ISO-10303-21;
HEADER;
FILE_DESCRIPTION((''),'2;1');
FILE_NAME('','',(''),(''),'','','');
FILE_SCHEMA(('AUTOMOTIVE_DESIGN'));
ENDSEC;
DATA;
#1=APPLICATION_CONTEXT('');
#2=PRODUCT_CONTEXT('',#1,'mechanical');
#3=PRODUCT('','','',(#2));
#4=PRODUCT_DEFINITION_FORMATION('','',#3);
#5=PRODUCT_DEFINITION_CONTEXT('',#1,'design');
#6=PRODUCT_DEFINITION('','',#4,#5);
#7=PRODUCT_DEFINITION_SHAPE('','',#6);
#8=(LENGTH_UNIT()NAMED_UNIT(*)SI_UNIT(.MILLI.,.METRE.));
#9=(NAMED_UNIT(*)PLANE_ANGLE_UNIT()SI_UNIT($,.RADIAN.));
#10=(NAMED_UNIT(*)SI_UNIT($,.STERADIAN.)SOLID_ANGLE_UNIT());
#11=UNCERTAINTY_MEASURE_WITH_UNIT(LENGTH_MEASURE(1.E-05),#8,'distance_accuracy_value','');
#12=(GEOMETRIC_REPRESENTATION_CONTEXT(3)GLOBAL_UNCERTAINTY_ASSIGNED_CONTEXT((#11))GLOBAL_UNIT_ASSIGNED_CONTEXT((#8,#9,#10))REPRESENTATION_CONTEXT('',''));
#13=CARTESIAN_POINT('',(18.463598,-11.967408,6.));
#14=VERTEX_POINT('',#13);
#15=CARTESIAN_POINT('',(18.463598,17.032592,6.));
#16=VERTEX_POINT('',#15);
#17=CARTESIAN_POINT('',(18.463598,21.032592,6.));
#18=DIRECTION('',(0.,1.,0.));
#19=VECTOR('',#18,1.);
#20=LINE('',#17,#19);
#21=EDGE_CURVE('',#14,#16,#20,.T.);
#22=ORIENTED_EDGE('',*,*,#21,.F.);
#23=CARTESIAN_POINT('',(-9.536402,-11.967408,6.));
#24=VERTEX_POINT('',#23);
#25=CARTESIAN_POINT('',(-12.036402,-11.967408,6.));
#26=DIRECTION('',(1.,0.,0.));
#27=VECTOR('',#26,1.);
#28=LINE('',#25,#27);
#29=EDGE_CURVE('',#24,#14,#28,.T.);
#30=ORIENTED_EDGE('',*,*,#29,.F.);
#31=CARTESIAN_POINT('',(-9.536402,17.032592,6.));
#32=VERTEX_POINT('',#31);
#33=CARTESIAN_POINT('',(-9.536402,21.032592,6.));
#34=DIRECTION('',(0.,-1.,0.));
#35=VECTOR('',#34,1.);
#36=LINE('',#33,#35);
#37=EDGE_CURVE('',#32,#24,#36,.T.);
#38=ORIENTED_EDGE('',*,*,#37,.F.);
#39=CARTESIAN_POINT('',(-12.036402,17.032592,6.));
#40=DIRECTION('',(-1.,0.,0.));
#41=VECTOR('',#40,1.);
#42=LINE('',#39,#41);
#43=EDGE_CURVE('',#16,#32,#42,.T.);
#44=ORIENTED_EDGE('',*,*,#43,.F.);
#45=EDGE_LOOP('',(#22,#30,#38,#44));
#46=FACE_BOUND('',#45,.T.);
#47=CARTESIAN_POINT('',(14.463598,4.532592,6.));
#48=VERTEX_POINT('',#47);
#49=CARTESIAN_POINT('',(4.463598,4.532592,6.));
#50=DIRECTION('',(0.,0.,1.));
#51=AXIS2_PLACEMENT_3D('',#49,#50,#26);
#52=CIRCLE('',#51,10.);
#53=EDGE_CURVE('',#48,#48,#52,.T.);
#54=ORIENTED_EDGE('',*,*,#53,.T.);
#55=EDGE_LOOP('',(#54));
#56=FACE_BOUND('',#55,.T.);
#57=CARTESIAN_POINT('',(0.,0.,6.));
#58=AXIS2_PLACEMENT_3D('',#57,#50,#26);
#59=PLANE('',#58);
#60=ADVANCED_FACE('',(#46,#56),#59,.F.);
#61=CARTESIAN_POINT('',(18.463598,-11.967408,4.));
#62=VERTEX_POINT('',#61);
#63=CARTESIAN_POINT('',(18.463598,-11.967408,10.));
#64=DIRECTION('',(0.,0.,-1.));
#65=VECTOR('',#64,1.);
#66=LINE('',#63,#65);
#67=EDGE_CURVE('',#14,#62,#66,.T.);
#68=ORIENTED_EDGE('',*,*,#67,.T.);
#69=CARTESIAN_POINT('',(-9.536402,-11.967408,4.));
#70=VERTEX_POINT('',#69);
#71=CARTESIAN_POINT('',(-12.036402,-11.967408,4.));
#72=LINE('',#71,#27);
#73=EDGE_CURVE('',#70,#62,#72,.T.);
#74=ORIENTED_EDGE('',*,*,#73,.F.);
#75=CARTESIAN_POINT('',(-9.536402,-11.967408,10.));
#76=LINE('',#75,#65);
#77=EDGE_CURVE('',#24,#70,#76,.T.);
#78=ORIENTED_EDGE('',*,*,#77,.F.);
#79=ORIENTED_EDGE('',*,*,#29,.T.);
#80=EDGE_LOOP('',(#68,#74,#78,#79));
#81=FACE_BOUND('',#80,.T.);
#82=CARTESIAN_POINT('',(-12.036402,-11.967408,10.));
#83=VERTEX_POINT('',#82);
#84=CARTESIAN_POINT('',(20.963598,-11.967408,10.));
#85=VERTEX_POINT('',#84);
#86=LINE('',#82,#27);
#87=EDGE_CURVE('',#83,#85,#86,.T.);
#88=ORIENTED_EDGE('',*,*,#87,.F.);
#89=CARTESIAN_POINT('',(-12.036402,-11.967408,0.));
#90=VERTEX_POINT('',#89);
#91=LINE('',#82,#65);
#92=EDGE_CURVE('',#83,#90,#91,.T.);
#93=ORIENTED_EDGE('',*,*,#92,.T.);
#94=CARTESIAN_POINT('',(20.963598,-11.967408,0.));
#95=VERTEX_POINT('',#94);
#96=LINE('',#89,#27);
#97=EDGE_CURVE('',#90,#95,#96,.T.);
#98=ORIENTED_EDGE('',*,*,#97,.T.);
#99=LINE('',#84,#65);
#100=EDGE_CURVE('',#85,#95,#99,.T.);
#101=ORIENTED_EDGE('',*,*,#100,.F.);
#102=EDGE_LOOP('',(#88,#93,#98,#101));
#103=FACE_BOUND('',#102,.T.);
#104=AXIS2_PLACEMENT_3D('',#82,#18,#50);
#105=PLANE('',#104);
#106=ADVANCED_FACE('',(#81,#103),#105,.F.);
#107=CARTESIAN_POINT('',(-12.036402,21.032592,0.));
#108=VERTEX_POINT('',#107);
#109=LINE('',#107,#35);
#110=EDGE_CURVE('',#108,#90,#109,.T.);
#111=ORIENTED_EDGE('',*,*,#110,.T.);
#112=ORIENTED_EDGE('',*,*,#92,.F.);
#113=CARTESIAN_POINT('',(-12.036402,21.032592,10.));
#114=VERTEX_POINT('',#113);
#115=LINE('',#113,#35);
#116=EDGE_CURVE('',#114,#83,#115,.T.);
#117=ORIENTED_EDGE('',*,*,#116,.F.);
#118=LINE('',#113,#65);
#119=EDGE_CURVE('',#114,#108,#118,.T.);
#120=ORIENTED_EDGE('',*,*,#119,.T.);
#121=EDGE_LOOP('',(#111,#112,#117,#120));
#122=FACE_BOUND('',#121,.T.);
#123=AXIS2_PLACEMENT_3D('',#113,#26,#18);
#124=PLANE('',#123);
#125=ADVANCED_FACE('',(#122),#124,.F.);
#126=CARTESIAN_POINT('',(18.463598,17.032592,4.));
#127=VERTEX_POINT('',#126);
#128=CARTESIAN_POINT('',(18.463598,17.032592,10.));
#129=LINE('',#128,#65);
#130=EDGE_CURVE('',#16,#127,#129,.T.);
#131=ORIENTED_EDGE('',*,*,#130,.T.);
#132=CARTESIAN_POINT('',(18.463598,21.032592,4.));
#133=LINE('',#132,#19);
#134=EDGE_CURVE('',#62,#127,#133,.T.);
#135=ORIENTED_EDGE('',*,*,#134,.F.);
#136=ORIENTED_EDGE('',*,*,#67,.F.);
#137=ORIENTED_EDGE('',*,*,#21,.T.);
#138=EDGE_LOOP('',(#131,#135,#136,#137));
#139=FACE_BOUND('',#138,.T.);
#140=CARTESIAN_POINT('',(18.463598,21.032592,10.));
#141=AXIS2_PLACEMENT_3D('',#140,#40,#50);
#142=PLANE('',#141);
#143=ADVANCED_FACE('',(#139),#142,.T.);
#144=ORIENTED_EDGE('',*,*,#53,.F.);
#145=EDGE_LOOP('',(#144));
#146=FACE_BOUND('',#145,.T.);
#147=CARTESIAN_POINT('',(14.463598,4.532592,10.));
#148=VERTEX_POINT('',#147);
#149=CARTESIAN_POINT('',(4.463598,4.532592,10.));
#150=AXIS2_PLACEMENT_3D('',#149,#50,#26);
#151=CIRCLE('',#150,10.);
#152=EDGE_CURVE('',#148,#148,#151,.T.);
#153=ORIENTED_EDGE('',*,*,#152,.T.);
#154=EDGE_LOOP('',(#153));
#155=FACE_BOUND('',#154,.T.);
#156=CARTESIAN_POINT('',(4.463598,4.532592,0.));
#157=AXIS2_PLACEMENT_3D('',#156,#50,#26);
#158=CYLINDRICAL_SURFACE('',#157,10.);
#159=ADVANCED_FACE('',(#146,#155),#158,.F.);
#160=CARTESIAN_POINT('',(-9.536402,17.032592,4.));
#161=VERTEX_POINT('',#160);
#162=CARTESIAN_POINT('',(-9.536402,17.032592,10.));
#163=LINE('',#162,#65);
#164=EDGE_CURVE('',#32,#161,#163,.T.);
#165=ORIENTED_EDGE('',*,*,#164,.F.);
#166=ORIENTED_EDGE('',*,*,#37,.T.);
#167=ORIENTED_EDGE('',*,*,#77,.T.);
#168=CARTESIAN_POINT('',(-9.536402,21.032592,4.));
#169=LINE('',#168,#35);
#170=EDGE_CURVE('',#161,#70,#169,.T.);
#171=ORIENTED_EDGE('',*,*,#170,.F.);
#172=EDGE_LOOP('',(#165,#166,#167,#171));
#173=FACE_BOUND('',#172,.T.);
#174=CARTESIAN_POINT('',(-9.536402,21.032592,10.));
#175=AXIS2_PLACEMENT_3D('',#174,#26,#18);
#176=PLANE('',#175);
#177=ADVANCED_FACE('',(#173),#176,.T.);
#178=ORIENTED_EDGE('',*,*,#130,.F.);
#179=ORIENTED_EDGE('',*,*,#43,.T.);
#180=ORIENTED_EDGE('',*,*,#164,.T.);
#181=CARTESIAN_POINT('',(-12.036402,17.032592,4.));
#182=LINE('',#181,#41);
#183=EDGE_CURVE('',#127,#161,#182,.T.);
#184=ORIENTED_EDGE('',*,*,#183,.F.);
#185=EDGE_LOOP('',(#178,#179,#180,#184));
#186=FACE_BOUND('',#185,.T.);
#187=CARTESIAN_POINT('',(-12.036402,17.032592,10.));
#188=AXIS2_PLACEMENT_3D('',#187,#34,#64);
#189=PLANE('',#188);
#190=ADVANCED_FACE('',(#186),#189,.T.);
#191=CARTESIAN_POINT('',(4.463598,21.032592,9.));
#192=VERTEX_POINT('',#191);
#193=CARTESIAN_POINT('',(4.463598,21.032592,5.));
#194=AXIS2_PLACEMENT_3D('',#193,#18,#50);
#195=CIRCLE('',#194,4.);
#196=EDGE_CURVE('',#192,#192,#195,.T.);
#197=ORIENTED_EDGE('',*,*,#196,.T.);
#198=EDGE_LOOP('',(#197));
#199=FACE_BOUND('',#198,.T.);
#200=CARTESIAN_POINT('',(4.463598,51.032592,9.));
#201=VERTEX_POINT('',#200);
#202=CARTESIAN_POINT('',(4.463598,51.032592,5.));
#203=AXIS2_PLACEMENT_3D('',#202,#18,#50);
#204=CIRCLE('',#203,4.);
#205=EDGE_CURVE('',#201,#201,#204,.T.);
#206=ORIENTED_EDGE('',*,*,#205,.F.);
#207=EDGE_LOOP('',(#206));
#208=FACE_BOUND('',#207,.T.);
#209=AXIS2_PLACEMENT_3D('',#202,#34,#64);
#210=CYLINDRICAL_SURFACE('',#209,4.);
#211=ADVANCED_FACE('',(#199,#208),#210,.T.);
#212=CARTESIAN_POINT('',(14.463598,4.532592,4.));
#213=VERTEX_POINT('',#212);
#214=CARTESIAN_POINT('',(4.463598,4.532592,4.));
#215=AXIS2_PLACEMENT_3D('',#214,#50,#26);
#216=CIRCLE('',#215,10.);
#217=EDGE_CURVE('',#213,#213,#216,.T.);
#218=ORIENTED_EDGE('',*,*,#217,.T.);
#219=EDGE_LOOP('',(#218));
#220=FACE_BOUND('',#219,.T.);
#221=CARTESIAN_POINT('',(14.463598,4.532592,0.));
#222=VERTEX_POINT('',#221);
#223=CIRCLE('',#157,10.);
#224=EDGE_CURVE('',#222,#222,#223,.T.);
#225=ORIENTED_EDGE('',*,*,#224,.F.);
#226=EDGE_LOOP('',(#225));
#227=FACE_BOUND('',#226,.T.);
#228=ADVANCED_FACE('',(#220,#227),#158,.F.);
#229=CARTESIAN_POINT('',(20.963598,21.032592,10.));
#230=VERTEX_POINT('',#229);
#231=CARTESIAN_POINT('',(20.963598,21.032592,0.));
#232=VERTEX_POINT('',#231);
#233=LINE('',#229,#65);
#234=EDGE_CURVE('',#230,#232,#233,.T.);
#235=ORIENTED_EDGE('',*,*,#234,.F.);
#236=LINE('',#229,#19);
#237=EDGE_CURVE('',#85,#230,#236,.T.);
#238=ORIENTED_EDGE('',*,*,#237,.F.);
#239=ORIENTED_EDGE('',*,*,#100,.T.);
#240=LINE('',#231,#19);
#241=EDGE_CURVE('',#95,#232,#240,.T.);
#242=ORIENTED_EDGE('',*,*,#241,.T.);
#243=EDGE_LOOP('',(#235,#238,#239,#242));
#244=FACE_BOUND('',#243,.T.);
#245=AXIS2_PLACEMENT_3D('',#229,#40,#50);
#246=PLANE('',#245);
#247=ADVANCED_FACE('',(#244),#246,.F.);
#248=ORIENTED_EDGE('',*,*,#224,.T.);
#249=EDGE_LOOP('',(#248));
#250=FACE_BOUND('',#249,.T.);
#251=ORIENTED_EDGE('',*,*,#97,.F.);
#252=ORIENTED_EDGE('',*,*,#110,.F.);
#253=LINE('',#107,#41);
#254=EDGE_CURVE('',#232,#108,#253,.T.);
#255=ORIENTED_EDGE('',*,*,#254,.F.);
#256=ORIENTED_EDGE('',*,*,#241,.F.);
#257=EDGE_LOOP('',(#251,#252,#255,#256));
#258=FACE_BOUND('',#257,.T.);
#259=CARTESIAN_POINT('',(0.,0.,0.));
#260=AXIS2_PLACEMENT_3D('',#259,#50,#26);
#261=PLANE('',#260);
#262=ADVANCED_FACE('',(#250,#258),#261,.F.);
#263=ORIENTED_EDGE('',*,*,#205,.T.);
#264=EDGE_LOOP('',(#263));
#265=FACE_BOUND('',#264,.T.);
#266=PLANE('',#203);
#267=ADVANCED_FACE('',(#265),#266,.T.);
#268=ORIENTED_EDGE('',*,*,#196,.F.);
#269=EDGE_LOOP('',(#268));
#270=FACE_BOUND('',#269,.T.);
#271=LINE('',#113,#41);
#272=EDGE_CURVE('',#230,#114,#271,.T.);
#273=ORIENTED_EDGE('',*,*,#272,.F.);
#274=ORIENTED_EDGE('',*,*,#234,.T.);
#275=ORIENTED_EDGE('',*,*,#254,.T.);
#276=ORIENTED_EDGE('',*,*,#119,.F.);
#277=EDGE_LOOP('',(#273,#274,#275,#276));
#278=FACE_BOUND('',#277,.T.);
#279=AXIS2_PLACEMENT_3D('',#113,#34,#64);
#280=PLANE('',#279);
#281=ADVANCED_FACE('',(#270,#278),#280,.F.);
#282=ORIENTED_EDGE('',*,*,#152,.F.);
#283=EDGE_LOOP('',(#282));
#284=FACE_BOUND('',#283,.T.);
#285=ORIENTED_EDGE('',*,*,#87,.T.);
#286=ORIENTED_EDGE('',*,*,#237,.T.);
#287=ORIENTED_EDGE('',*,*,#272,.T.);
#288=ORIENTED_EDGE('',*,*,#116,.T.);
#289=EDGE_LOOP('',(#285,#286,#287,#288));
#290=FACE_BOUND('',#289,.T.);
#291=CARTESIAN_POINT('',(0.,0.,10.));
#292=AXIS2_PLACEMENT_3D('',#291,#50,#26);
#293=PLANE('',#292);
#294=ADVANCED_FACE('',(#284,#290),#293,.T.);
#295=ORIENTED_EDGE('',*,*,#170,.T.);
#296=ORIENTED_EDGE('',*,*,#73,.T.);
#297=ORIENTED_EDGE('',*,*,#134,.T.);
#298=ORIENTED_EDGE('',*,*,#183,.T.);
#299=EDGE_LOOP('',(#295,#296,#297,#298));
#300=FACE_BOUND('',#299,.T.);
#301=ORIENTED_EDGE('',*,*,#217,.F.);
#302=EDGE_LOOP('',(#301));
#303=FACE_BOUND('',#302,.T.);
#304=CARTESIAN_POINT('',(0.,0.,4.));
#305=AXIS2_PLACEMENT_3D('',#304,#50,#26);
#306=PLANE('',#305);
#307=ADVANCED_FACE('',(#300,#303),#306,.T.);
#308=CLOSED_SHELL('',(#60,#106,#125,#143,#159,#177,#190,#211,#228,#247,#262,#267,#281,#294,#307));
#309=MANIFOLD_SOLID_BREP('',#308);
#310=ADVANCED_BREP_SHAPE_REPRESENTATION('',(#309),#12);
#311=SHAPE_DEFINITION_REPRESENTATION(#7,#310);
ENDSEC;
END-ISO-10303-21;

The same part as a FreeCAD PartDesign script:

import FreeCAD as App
import Part
import Sketcher
from FreeCAD import Vector
Q = App.Units.Quantity


def faces_at(feature, points):
    """Names of the faces that lie closest to the given points."""
    faces = feature.Shape.Faces
    near = lambda p: min(range(len(faces)), key=lambda i: faces[i].distToShape(Part.Vertex(*p))[0])
    return sorted({f"Face{near(p) + 1}" for p in points})


def add_polygon(sketch, points):
    """Adds a closed chain of lines whose ends are joined by coincident constraints."""
    first, n = sketch.GeometryCount, len(points)
    for a, b in zip(points, points[1:] + points[:1]):
        sketch.addGeometry(Part.LineSegment(App.Vector(*a, 0), App.Vector(*b, 0)), False)
    for i in range(n):
        sketch.addConstraint(Sketcher.Constraint("Coincident", first + i, 2, first + (i + 1) % n, 1))

doc = App.newDocument("Part")
body = doc.addObject("PartDesign::Body", "Body")

sketch1 = doc.addObject("Sketcher::SketchObject", "Sketch")
body.addObject(sketch1)
sketch1.AttachmentSupport = (doc.XY_Plane, [""])
sketch1.MapMode = "FlatFace"
add_polygon(sketch1, [(-12, 21), (-12, -12), (21, -12), (21, 21)])
sketch1.addConstraint(Sketcher.Constraint("Vertical", 0))
sketch1.addConstraint(Sketcher.Constraint("Horizontal", 1))
sketch1.addConstraint(Sketcher.Constraint("Vertical", 2))
sketch1.addConstraint(Sketcher.Constraint("Horizontal", 3))
sketch1.addConstraint(Sketcher.Constraint("Equal", 3, 0))
sketch1.addConstraint(Sketcher.Constraint("DistanceX", 1, 1, 1, 2, Q("33 mm")))
sketch1.addConstraint(Sketcher.Constraint("DistanceY", 0, 2, -1, 1, Q("11.967408 mm")))
sketch1.addConstraint(Sketcher.Constraint("DistanceX", 0, 2, -1, 1, Q("12.036402 mm")))
pad1 = doc.addObject("PartDesign::Pad", "Pad")
body.addObject(pad1)
pad1.Profile = sketch1
pad1.Length = 10
doc.recompute()

thickness = doc.addObject("PartDesign::Thickness", "Thickness")
body.addObject(thickness)
thickness.Base = (pad1, faces_at(pad1, [(4.464, -11.967, 5)]))
thickness.Value = 4
thickness.Reversed = True
thickness.Join = "Intersection"

sketch2 = doc.addObject("Sketcher::SketchObject", "Sketch001")
body.addObject(sketch2)
sketch2.AttachmentSupport = (doc.YZ_Plane, [""])
sketch2.MapMode = "FlatFace"
sketch2.AttachmentOffset = App.Placement(Vector(0, 0, 16.963598), App.Rotation())
add_polygon(sketch2, [(-12, 4), (17, 4), (17, 6), (-12, 6)])
sketch2.addConstraint(Sketcher.Constraint("Horizontal", 0))
sketch2.addConstraint(Sketcher.Constraint("Vertical", 1))
sketch2.addConstraint(Sketcher.Constraint("Horizontal", 2))
sketch2.addConstraint(Sketcher.Constraint("Vertical", 3))
sketch2.addConstraint(Sketcher.Constraint("DistanceX", 0, 1, 0, 2, Q("29 mm")))
sketch2.addConstraint(Sketcher.Constraint("DistanceY", 1, 1, 1, 2, Q("2 mm")))
sketch2.addConstraint(Sketcher.Constraint("DistanceY", -1, 1, 0, 2, Q("4 mm")))
sketch2.addConstraint(Sketcher.Constraint("DistanceX", -1, 1, 0, 2, Q("17.032592 mm")))
pocket1 = doc.addObject("PartDesign::Pocket", "Pocket")
body.addObject(pocket1)
pocket1.Profile = sketch2
pocket1.Length = 1.5
pocket1.Reversed = True

sketch3 = doc.addObject("Sketcher::SketchObject", "Sketch002")
body.addObject(sketch3)
sketch3.AttachmentSupport = (doc.YZ_Plane, [""])
sketch3.MapMode = "FlatFace"
sketch3.AttachmentOffset = App.Placement(Vector(0, 0, -8.036402), App.Rotation())
add_polygon(sketch3, [(17, 6), (17, 4), (-12, 4), (-12, 6)])
sketch3.addConstraint(Sketcher.Constraint("Vertical", 0))
sketch3.addConstraint(Sketcher.Constraint("Horizontal", 1))
sketch3.addConstraint(Sketcher.Constraint("Vertical", 2))
sketch3.addConstraint(Sketcher.Constraint("Horizontal", 3))
sketch3.addConstraint(Sketcher.Constraint("DistanceX", 1, 2, 1, 1, Q("29 mm")))
sketch3.addConstraint(Sketcher.Constraint("DistanceY", 0, 2, 0, 1, Q("2 mm")))
sketch3.addConstraint(Sketcher.Constraint("DistanceY", -1, 1, 0, 2, Q("4 mm")))
sketch3.addConstraint(Sketcher.Constraint("DistanceX", -1, 1, 0, 2, Q("17.032592 mm")))
pocket2 = doc.addObject("PartDesign::Pocket", "Pocket001")
body.addObject(pocket2)
pocket2.Profile = sketch3
pocket2.Length = 1.5

sketch4 = doc.addObject("Sketcher::SketchObject", "Sketch003")
body.addObject(sketch4)
sketch4.AttachmentSupport = (doc.XY_Plane, [""])
sketch4.MapMode = "FlatFace"
sketch4.AttachmentOffset = App.Placement(Vector(0, 0, 10), App.Rotation())
sketch4.addGeometry(Part.Circle(Vector(4, 5, 0), Vector(0, 0, 1), 10), False)
sketch4.addConstraint(Sketcher.Constraint("Diameter", 0, Q("20 mm")))
sketch4.addConstraint(Sketcher.Constraint("DistanceY", -1, 1, 0, 3, Q("4.532592 mm")))
sketch4.addConstraint(Sketcher.Constraint("DistanceX", -1, 1, 0, 3, Q("4.463598 mm")))
pocket3 = doc.addObject("PartDesign::Pocket", "Pocket002")
body.addObject(pocket3)
pocket3.Profile = sketch4
pocket3.Length = 10

sketch5 = doc.addObject("Sketcher::SketchObject", "Sketch004")
body.addObject(sketch5)
sketch5.AttachmentSupport = (doc.XZ_Plane, [""])
sketch5.MapMode = "FlatFace"
sketch5.AttachmentOffset = App.Placement(Vector(0, 0, -21.032592), App.Rotation())
sketch5.addGeometry(Part.Circle(Vector(4.5, 5, 0), Vector(0, 0, 1), 4), False)
sketch5.addConstraint(Sketcher.Constraint("Diameter", 0, Q("8 mm")))
sketch5.addConstraint(Sketcher.Constraint("DistanceY", -1, 1, 0, 3, Q("5 mm")))
sketch5.addConstraint(Sketcher.Constraint("DistanceX", -1, 1, 0, 3, Q("4.463598 mm")))
pad2 = doc.addObject("PartDesign::Pad", "Pad001")
body.addObject(pad2)
pad2.Profile = sketch5
pad2.Length = 30
pad2.Reversed = True

doc.recompute()
